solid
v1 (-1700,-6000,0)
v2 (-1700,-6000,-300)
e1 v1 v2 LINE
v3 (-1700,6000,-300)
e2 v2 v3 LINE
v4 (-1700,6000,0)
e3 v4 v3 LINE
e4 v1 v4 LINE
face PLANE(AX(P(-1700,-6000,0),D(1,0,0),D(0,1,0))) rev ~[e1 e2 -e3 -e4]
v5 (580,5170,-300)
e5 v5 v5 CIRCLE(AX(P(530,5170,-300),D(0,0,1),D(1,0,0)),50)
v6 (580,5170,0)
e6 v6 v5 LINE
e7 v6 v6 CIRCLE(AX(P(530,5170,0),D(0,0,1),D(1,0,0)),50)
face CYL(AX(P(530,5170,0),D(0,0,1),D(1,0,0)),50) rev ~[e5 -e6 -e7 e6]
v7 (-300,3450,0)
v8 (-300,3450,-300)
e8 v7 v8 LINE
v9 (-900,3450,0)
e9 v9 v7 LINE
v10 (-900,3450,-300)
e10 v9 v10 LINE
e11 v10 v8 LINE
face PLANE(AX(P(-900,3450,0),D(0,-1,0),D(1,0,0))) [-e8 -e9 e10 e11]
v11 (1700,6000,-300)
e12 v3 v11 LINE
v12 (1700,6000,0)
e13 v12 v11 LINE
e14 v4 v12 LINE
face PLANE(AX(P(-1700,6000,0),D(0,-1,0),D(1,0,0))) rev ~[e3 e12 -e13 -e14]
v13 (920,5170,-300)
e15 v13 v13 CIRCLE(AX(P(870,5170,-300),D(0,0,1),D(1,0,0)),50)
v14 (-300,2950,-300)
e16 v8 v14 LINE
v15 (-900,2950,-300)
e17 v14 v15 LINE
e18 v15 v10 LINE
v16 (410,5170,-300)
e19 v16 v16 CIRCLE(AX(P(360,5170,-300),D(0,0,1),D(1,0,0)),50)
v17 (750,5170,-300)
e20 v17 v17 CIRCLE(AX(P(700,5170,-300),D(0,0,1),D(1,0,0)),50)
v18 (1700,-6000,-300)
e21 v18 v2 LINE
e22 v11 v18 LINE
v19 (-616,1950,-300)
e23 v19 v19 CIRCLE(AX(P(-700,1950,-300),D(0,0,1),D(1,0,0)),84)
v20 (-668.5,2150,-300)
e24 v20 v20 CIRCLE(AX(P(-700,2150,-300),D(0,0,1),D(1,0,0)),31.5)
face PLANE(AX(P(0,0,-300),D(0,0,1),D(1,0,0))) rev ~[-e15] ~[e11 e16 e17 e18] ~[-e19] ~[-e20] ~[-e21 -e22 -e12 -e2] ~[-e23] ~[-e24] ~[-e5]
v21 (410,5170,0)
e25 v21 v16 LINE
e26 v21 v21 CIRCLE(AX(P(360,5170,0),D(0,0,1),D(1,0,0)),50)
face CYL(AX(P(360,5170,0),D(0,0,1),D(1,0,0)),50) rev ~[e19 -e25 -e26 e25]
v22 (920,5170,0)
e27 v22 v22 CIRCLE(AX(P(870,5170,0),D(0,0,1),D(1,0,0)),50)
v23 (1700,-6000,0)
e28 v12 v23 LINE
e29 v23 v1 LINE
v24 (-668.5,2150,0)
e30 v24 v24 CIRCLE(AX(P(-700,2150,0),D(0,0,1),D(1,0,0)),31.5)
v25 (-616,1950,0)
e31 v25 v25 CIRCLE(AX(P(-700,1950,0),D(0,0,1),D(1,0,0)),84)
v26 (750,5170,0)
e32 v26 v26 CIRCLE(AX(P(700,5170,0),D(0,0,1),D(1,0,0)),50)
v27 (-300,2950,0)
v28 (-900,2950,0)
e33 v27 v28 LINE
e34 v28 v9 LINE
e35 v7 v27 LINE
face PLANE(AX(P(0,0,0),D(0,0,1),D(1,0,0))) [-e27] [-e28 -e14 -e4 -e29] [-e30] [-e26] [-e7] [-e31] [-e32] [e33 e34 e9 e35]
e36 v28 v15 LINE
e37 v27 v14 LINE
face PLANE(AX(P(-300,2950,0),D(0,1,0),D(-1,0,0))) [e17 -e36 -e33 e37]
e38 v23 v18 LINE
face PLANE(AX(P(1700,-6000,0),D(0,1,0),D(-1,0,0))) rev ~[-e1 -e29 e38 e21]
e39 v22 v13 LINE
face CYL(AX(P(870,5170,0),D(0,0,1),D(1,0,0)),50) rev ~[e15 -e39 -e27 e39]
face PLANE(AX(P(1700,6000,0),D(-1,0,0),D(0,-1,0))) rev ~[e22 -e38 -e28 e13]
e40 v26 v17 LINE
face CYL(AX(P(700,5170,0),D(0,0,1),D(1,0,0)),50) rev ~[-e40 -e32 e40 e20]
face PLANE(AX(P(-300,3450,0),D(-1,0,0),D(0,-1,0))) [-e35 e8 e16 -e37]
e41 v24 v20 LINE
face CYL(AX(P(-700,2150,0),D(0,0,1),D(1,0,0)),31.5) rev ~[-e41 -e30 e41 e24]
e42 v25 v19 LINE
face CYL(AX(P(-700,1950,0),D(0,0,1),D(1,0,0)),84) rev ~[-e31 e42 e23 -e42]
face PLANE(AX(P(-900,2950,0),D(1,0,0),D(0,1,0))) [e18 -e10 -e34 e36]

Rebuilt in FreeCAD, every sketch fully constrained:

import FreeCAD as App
import Part
import Sketcher
from FreeCAD import Vector

doc = App.newDocument("Part")
body = doc.addObject("PartDesign::Body", "Body")

# Sketch on XY plane
sketch1 = body.newObject("Sketcher::SketchObject", "Sketch")
sketch1.AttachmentSupport = (doc.getObject("XY_Plane"), [""])
sketch1.MapMode = "FlatFace"
sketch1.addGeometry([
    Part.LineSegment(Vector(1700, 6000, 0), Vector(-1700, 6000, 0)),  # 0
    Part.LineSegment(Vector(-1700, 6000, 0), Vector(-1700, -6000, 0)),  # 1
    Part.LineSegment(Vector(-1700, -6000, 0), Vector(1700, -6000, 0)),  # 2
    Part.LineSegment(Vector(1700, -6000, 0), Vector(1700, 6000, 0)),  # 3
    Part.Circle(Vector(-700, 1950, 0), Vector(0, 0, 1), 84),  # 4
    Part.Circle(Vector(-700, 2150, 0), Vector(0, 0, 1), 32),  # 5
    Part.LineSegment(Vector(-900, 2950, 0), Vector(-900, 3450, 0)),  # 6
    Part.LineSegment(Vector(-900, 3450, 0), Vector(-300, 3450, 0)),  # 7
    Part.LineSegment(Vector(-300, 3450, 0), Vector(-300, 2950, 0)),  # 8
    Part.LineSegment(Vector(-300, 2950, 0), Vector(-900, 2950, 0)),  # 9
    Part.Circle(Vector(360, 5170, 0), Vector(0, 0, 1), 50),  # 10
    Part.Circle(Vector(530, 5170, 0), Vector(0, 0, 1), 50),  # 11
    Part.Circle(Vector(700, 5170, 0), Vector(0, 0, 1), 50),  # 12
    Part.Circle(Vector(870, 5170, 0), Vector(0, 0, 1), 50),  # 13
], False)
sketch1.addConstraint([
    Sketcher.Constraint("Coincident", 0, 2, 1, 1),
    Sketcher.Constraint("Coincident", 1, 2, 2, 1),
    Sketcher.Constraint("Coincident", 2, 2, 3, 1),
    Sketcher.Constraint("Coincident", 3, 2, 0, 1),
    Sketcher.Constraint("Coincident", 6, 2, 7, 1),
    Sketcher.Constraint("Coincident", 7, 2, 8, 1),
    Sketcher.Constraint("Coincident", 8, 2, 9, 1),
    Sketcher.Constraint("Coincident", 9, 2, 6, 1),
    Sketcher.Constraint("Horizontal", 0),
    Sketcher.Constraint("Vertical", 1),
    Sketcher.Constraint("Horizontal", 2),
    Sketcher.Constraint("Vertical", 3),
    Sketcher.Constraint("Vertical", 6),
    Sketcher.Constraint("Horizontal", 7),
    Sketcher.Constraint("Vertical", 8),
    Sketcher.Constraint("Horizontal", 9),
    Sketcher.Constraint("Equal", 10, 11),
    Sketcher.Constraint("Equal", 11, 12),
    Sketcher.Constraint("Equal", 12, 13),
    Sketcher.Constraint("Symmetric", 0, 2, 2, 2, -1, 1),
    Sketcher.Constraint("Horizontal", 10, 3, 11, 3),
    Sketcher.Constraint("Horizontal", 11, 3, 12, 3),
    Sketcher.Constraint("Horizontal", 12, 3, 13, 3),
    Sketcher.Constraint("Vertical", 4, 3, 5, 3),
    Sketcher.Constraint("Diameter", 4, 168.0),
    Sketcher.Constraint("Diameter", 5, 63.0),
    Sketcher.Constraint("Diameter", 10, 100.0),
    Sketcher.Constraint("DistanceX", 0, 2, 0, 1, 3400.0),
    Sketcher.Constraint("DistanceX", 7, 1, 7, 2, 600.0),
    Sketcher.Constraint("DistanceY", 1, 2, 1, 1, 12000.0),
    Sketcher.Constraint("DistanceY", 6, 1, 6, 2, 500.0),
    Sketcher.Constraint("DistanceY", 4, 3, 5, 3, 200.0),
    Sketcher.Constraint("DistanceX", 10, 3, 11, 3, 170.0),
    Sketcher.Constraint("DistanceX", 11, 3, 12, 3, 170.0),
    Sketcher.Constraint("DistanceX", 12, 3, 13, 3, 170.0),
    Sketcher.Constraint("DistanceX", 0, 2, 5, 3, 1000.0),
    Sketcher.Constraint("DistanceY", 5, 3, 0, 2, 3850.0),
    Sketcher.Constraint("DistanceX", 12, 3, 2, 2, 1000.0),
    Sketcher.Constraint("DistanceX", 6, 2, 5, 3, 200.0),
    Sketcher.Constraint("DistanceY", 5, 3, 8, 2, 800.0),
    Sketcher.Constraint("DistanceY", -1, 1, 10, 3, 5170.0),
])
pad1 = body.newObject("PartDesign::Pad", "Pad")
pad1.Profile = sketch1
pad1.Length = 300
pad1.Reversed = True

doc.recompute()
